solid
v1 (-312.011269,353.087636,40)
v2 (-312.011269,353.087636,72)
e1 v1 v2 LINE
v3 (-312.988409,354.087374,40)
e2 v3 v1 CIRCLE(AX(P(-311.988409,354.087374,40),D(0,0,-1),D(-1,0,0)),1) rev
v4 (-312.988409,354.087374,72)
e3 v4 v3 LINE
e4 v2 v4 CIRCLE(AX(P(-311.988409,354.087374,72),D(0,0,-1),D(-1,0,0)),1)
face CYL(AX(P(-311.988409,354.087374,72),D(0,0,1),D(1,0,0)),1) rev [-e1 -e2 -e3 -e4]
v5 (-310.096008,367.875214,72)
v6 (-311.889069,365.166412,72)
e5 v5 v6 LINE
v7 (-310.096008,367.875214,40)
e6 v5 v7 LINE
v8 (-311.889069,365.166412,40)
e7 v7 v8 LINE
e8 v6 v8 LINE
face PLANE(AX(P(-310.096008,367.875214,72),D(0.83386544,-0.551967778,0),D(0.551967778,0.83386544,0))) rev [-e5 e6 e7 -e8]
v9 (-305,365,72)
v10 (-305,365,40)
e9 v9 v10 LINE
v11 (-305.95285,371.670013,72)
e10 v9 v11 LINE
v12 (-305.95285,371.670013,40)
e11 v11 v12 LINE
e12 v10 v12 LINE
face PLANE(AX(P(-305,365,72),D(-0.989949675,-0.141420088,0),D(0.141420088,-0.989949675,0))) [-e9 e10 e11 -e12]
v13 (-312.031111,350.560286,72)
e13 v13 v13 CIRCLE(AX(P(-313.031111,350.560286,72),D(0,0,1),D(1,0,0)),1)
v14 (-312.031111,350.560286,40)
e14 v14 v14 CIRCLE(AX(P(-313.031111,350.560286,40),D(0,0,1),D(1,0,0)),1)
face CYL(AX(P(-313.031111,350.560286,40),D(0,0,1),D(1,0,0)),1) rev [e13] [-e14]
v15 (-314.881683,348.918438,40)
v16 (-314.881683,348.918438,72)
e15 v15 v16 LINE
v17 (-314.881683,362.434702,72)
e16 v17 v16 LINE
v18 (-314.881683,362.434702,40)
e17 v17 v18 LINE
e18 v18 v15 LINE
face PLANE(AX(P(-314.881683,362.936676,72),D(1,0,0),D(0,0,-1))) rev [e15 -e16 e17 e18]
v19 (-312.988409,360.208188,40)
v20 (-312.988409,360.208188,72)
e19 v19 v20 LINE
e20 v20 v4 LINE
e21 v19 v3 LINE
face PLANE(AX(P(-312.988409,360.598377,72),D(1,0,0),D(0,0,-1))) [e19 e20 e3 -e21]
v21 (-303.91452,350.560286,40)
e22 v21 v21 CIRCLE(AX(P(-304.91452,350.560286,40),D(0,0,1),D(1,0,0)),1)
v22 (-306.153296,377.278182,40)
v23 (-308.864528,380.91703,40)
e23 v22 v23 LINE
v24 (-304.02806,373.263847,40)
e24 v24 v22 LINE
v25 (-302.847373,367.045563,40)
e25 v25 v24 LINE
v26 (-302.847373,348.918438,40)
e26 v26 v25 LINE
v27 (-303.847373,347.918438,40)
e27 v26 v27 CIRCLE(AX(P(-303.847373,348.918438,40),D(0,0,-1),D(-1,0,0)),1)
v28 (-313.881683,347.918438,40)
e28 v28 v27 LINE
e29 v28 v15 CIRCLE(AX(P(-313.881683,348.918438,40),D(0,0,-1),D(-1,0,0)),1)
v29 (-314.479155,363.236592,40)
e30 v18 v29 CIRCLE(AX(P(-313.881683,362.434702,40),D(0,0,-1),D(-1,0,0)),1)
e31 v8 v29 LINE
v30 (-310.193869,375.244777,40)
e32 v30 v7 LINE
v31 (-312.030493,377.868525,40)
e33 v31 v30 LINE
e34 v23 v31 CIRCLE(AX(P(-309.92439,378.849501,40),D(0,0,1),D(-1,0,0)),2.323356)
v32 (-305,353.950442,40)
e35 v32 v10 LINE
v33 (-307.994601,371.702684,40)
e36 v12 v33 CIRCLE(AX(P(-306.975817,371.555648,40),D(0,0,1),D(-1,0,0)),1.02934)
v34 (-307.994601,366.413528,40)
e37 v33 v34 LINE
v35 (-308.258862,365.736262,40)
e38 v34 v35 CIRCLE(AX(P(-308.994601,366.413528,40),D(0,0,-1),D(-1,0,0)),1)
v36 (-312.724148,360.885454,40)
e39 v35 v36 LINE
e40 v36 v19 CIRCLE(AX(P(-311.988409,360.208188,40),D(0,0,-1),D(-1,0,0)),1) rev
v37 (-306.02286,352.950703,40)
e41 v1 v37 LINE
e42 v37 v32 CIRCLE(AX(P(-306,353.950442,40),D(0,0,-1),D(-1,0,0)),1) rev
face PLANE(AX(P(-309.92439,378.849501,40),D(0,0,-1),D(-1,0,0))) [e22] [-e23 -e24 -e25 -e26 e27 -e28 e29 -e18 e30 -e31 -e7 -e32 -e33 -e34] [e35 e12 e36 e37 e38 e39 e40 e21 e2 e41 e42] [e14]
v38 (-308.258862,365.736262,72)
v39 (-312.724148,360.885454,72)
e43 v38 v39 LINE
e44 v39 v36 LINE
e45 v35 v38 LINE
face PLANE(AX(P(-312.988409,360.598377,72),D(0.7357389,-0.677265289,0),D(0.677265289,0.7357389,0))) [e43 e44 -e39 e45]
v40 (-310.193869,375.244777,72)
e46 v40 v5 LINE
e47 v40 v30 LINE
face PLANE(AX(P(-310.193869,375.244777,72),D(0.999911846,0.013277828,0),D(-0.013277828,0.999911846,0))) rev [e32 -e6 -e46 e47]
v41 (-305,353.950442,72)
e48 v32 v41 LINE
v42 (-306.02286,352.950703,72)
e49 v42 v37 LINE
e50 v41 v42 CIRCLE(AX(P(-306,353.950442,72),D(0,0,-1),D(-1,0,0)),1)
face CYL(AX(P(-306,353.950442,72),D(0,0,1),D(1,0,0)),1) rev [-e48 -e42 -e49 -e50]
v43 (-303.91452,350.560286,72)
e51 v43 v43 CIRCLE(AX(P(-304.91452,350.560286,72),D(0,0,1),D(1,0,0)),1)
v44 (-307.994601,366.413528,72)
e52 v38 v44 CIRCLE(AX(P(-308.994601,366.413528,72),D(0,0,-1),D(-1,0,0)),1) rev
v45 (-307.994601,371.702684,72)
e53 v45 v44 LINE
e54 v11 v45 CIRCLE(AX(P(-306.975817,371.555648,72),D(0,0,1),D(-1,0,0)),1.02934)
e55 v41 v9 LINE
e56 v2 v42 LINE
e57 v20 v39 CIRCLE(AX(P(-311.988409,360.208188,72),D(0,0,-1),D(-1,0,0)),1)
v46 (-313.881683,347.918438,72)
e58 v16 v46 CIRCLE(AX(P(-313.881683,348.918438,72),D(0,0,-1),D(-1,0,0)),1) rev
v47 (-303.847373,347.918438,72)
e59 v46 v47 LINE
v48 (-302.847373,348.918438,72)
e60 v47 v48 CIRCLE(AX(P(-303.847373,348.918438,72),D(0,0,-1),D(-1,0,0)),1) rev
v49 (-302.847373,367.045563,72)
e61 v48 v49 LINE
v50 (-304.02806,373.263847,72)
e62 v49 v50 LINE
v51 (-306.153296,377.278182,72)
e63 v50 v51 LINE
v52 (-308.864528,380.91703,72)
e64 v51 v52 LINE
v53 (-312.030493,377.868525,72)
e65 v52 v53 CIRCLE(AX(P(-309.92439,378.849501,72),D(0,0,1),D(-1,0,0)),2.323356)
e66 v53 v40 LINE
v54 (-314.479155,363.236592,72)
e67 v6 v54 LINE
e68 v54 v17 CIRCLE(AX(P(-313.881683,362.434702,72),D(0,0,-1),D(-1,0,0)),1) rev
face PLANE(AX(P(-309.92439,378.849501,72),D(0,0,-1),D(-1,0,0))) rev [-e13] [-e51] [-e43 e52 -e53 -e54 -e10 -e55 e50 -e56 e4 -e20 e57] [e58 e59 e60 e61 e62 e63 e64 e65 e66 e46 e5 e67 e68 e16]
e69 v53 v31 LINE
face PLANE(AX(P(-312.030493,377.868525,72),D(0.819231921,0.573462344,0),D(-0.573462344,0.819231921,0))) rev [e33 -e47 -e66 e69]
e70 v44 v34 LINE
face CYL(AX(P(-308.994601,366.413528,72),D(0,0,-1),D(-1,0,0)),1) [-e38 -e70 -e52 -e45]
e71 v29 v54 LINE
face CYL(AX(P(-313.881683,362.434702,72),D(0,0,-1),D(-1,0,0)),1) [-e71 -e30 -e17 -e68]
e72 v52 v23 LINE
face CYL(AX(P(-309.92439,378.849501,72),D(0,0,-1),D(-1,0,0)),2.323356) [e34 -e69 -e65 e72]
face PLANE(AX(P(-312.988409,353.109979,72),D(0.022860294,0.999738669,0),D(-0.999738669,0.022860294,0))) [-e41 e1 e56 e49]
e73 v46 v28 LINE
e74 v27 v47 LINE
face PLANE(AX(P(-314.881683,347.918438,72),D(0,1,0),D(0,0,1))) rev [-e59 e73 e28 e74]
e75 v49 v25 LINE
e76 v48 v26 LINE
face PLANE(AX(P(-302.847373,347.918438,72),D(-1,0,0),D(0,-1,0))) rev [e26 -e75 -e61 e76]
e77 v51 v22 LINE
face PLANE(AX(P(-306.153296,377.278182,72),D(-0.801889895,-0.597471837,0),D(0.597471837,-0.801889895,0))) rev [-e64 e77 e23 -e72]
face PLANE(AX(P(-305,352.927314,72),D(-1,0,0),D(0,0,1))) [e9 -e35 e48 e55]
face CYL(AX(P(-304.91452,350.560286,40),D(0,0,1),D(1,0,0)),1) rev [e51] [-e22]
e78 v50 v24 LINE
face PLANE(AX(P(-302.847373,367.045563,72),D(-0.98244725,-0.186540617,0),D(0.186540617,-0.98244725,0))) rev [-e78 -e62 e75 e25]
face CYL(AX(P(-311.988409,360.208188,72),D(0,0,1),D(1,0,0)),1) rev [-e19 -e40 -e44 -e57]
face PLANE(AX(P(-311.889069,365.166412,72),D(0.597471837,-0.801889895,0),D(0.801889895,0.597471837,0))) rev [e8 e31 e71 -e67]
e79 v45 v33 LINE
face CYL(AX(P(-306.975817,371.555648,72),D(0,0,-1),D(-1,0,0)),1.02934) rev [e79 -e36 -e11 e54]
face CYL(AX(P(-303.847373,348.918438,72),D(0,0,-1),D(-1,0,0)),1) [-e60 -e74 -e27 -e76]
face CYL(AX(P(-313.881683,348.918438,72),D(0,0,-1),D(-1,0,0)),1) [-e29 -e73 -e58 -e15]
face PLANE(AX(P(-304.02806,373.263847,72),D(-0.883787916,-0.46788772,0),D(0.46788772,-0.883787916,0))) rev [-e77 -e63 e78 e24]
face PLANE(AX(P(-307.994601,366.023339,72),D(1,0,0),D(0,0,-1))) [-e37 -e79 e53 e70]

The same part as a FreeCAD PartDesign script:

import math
import FreeCAD as App
import Part
import Sketcher

V = App.Vector
Q = App.Units.Quantity


def edges_at(feature, points):
    """Names of the edges that pass closest to the given points."""
    edges = feature.Shape.Edges
    near = lambda p: min(range(len(edges)), key=lambda i: edges[i].distToShape(Part.Vertex(*p))[0])
    return sorted({f"Edge{near(p) + 1}" for p in points})

doc = App.newDocument("Part")
params = doc.addObject("Spreadsheet::Sheet", "Params")
for row, (alias, value) in enumerate([
    ("pad1_length", "32 mm"),
    ("fillet_radius", "1 mm"),
    ("sketch2_diameter", "2 mm"),
    ("pocket1_length", "32 mm"),
], start=1):
    params.set(f"A{row}", alias)
    params.set(f"B{row}", "=" + value)
    params.setAlias(f"B{row}", alias)

body = doc.addObject("PartDesign::Body", "Body")

sketch1 = doc.addObject("Sketcher::SketchObject", "Sketch")
body.addObject(sketch1)
sketch1.AttachmentSupport = (doc.XY_Plane, [""])
sketch1.MapMode = "FlatFace"
sketch1.AttachmentOffset = App.Placement(V(0, 0, 40), App.Rotation())
sketch1.addGeometry([
    Part.LineSegment(V(-312, 377.9, 0), V(-310.2, 375.2, 0)),
    Part.LineSegment(V(-310.2, 375.2, 0), V(-310.1, 367.9, 0)),
    Part.LineSegment(V(-310.1, 367.9, 0), V(-311.9, 365.2, 0)),
    Part.LineSegment(V(-311.9, 365.2, 0), V(-314.9, 362.9, 0)),
    Part.LineSegment(V(-314.9, 362.9, 0), V(-314.9, 347.9, 0)),
    Part.LineSegment(V(-314.9, 347.9, 0), V(-302.8, 347.9, 0)),
    Part.LineSegment(V(-302.8, 347.9, 0), V(-302.8, 367, 0)),
    Part.LineSegment(V(-302.8, 367, 0), V(-304, 373.3, 0)),
    Part.LineSegment(V(-304, 373.3, 0), V(-306.2, 377.3, 0)),
    Part.LineSegment(V(-306.2, 377.3, 0), V(-308.9, 380.9, 0)),
    Part.ArcOfCircle(Part.Circle(V(-309.9, 378.8, 0), V(0, 0, 1), 2.3), math.radians(63), math.radians(205)),
    Part.LineSegment(V(-313, 353.1, 0), V(-313, 360.6, 0)),
    Part.LineSegment(V(-313, 360.6, 0), V(-308, 366, 0)),
    Part.LineSegment(V(-308, 366, 0), V(-308, 371.7, 0)),
    Part.ArcOfCircle(Part.Circle(V(-307, 371.6, 0), V(0, 0, 1), 1), math.radians(6), math.radians(172)),
    Part.LineSegment(V(-306, 371.7, 0), V(-305, 365, 0)),
    Part.LineSegment(V(-305, 365, 0), V(-305, 352.9, 0)),
    Part.LineSegment(V(-305, 352.9, 0), V(-313, 353.1, 0)),
], False)
sketch1.addConstraint([
    Sketcher.Constraint("Coincident", 0, 2, 1, 1),
    Sketcher.Constraint("Coincident", 1, 2, 2, 1),
    Sketcher.Constraint("Coincident", 2, 2, 3, 1),
    Sketcher.Constraint("Coincident", 3, 2, 4, 1),
    Sketcher.Constraint("Coincident", 4, 2, 5, 1),
    Sketcher.Constraint("Coincident", 5, 2, 6, 1),
    Sketcher.Constraint("Coincident", 6, 2, 7, 1),
    Sketcher.Constraint("Coincident", 7, 2, 8, 1),
    Sketcher.Constraint("Coincident", 8, 2, 9, 1),
    Sketcher.Constraint("Coincident", 9, 2, 10, 1),
    Sketcher.Constraint("Coincident", 10, 2, 0, 1),
    Sketcher.Constraint("Coincident", 11, 2, 12, 1),
    Sketcher.Constraint("Coincident", 12, 2, 13, 1),
    Sketcher.Constraint("Coincident", 13, 2, 14, 2),
    Sketcher.Constraint("Coincident", 14, 1, 15, 1),
    Sketcher.Constraint("Coincident", 15, 2, 16, 1),
    Sketcher.Constraint("Coincident", 16, 2, 17, 1),
    Sketcher.Constraint("Coincident", 17, 2, 11, 1),
    Sketcher.Constraint("Vertical", 4),
    Sketcher.Constraint("Horizontal", 5),
    Sketcher.Constraint("Vertical", 6),
    Sketcher.Constraint("Vertical", 11),
    Sketcher.Constraint("Vertical", 13),
    Sketcher.Constraint("Vertical", 16),
    Sketcher.Constraint("Perpendicular", 3, 9),
    Sketcher.Constraint("DistanceX", 15, 2, -1, 1, Q("305 mm")),
    Sketcher.Constraint("DistanceY", -1, 1, 15, 2, Q("365 mm")),
    Sketcher.Constraint("Radius", 14, Q("1.02934 mm")),
    Sketcher.Constraint("Radius", 10, Q("2.323356 mm")),
    Sketcher.Constraint("DistanceX", 5, 1, 5, 2, Q("12.03431 mm")),
    Sketcher.Constraint("DistanceY", -1, 1, 10, 3, Q("378.849501 mm")),
    Sketcher.Constraint("DistanceX", 12, 2, -1, 1, Q("307.994601 mm")),
    Sketcher.Constraint("DistanceY", 2, 2, 1, 2, Q("2.708801 mm")),
    Sketcher.Constraint("DistanceX", 2, 2, 0, 2, Q("1.6952 mm")),
    Sketcher.Constraint("DistanceY", 3, 2, 0, 2, Q("12.308101 mm")),
    Sketcher.Constraint("DistanceY", 14, 3, 7, 2, Q("1.708199 mm")),
    Sketcher.Constraint("DistanceY", 11, 2, 3, 2, Q("2.338299 mm")),
    Sketcher.Constraint("DistanceX", 11, 2, 1, 2, Q("2.8924 mm")),
    Sketcher.Constraint("Distance", 7, Q("6.329382 mm")),
    Sketcher.Constraint("Distance", 9, Q("4.537841 mm")),
    Sketcher.Constraint("Distance", 12, Q("7.373488 mm")),
    Sketcher.Constraint("Distance", 15, Q("6.73773 mm")),
    Sketcher.Constraint("DistanceY", 4, 2, 4, 1, Q("15.018238 mm")),
    Sketcher.Constraint("DistanceY", 6, 1, 6, 2, Q("19.127125 mm")),
    Sketcher.Constraint("DistanceY", 11, 1, 11, 2, Q("7.488398 mm")),
    Sketcher.Constraint("DistanceY", 13, 1, 13, 2, Q("5.679345 mm")),
    Sketcher.Constraint("DistanceY", 16, 2, 16, 1, Q("12.072686 mm")),
    Sketcher.Constraint("DistanceX", 10, 3, -1, 1, Q("309.92439 mm")),
    Sketcher.Constraint("DistanceX", 0, 2, -1, 1, Q("310.193869 mm")),
    Sketcher.Constraint("DistanceX", 1, 2, -1, 1, Q("310.096008 mm")),
    Sketcher.Constraint("DistanceY", -1, 1, 4, 2, Q("347.918438 mm")),
    Sketcher.Constraint("DistanceX", 7, 2, -1, 1, Q("304.02806 mm")),
    Sketcher.Constraint("DistanceY", -1, 1, 8, 2, Q("377.278182 mm")),
    Sketcher.Constraint("DistanceX", 9, 2, -1, 1, Q("308.864528 mm")),
    Sketcher.Constraint("DistanceX", 14, 1, -1, 1, Q("305.95285 mm")),
    Sketcher.Constraint("DistanceY", 0, 2, 10, 2, Q("2.623748 mm")),
])
pad1 = doc.addObject("PartDesign::Pad", "Pad")
body.addObject(pad1)
pad1.Profile = sketch1
pad1.setExpression("Length", "Params.pad1_length")
doc.recompute()

fillet = doc.addObject("PartDesign::Fillet", "Fillet")
body.addObject(fillet)
fillet.Base = (pad1, edges_at(pad1, [
    (-302.847, 347.918, 56),
    (-314.882, 347.918, 56),
    (-314.882, 362.937, 56),
    (-307.995, 366.023, 56),
    (-312.988, 360.598, 56),
    (-312.988, 353.11, 56),
    (-305, 352.927, 56),
]))
fillet.setExpression("Radius", "Params.fillet_radius")

sketch2 = doc.addObject("Sketcher::SketchObject", "Sketch001")
body.addObject(sketch2)
sketch2.AttachmentSupport = (doc.XY_Plane, [""])
sketch2.MapMode = "FlatFace"
sketch2.AttachmentOffset = App.Placement(V(0, 0, 72), App.Rotation())
sketch2.addGeometry([
    Part.Circle(V(-313, 350.6, 0), V(0, 0, 1), 1),
    Part.Circle(V(-304.9, 350.6, 0), V(0, 0, 1), 1),
], False)
sketch2.addConstraint([
    Sketcher.Constraint("Equal", 0, 1),
    Sketcher.Constraint("Horizontal", 0, 3, 1, 3),
    Sketcher.Constraint("Diameter", 0, Q("2 mm")),
    Sketcher.Constraint("DistanceX", 0, 3, -1, 1, Q("313.031111 mm")),
    Sketcher.Constraint("DistanceX", 1, 3, -1, 1, Q("304.91452 mm")),
    Sketcher.Constraint("DistanceY", -1, 1, 0, 3, Q("350.560286 mm")),
])
sketch2.setExpression("Constraints[2]", "Params.sketch2_diameter")
pocket1 = doc.addObject("PartDesign::Pocket", "Pocket")
body.addObject(pocket1)
pocket1.Profile = sketch2
pocket1.setExpression("Length", "Params.pocket1_length")

doc.recompute()
